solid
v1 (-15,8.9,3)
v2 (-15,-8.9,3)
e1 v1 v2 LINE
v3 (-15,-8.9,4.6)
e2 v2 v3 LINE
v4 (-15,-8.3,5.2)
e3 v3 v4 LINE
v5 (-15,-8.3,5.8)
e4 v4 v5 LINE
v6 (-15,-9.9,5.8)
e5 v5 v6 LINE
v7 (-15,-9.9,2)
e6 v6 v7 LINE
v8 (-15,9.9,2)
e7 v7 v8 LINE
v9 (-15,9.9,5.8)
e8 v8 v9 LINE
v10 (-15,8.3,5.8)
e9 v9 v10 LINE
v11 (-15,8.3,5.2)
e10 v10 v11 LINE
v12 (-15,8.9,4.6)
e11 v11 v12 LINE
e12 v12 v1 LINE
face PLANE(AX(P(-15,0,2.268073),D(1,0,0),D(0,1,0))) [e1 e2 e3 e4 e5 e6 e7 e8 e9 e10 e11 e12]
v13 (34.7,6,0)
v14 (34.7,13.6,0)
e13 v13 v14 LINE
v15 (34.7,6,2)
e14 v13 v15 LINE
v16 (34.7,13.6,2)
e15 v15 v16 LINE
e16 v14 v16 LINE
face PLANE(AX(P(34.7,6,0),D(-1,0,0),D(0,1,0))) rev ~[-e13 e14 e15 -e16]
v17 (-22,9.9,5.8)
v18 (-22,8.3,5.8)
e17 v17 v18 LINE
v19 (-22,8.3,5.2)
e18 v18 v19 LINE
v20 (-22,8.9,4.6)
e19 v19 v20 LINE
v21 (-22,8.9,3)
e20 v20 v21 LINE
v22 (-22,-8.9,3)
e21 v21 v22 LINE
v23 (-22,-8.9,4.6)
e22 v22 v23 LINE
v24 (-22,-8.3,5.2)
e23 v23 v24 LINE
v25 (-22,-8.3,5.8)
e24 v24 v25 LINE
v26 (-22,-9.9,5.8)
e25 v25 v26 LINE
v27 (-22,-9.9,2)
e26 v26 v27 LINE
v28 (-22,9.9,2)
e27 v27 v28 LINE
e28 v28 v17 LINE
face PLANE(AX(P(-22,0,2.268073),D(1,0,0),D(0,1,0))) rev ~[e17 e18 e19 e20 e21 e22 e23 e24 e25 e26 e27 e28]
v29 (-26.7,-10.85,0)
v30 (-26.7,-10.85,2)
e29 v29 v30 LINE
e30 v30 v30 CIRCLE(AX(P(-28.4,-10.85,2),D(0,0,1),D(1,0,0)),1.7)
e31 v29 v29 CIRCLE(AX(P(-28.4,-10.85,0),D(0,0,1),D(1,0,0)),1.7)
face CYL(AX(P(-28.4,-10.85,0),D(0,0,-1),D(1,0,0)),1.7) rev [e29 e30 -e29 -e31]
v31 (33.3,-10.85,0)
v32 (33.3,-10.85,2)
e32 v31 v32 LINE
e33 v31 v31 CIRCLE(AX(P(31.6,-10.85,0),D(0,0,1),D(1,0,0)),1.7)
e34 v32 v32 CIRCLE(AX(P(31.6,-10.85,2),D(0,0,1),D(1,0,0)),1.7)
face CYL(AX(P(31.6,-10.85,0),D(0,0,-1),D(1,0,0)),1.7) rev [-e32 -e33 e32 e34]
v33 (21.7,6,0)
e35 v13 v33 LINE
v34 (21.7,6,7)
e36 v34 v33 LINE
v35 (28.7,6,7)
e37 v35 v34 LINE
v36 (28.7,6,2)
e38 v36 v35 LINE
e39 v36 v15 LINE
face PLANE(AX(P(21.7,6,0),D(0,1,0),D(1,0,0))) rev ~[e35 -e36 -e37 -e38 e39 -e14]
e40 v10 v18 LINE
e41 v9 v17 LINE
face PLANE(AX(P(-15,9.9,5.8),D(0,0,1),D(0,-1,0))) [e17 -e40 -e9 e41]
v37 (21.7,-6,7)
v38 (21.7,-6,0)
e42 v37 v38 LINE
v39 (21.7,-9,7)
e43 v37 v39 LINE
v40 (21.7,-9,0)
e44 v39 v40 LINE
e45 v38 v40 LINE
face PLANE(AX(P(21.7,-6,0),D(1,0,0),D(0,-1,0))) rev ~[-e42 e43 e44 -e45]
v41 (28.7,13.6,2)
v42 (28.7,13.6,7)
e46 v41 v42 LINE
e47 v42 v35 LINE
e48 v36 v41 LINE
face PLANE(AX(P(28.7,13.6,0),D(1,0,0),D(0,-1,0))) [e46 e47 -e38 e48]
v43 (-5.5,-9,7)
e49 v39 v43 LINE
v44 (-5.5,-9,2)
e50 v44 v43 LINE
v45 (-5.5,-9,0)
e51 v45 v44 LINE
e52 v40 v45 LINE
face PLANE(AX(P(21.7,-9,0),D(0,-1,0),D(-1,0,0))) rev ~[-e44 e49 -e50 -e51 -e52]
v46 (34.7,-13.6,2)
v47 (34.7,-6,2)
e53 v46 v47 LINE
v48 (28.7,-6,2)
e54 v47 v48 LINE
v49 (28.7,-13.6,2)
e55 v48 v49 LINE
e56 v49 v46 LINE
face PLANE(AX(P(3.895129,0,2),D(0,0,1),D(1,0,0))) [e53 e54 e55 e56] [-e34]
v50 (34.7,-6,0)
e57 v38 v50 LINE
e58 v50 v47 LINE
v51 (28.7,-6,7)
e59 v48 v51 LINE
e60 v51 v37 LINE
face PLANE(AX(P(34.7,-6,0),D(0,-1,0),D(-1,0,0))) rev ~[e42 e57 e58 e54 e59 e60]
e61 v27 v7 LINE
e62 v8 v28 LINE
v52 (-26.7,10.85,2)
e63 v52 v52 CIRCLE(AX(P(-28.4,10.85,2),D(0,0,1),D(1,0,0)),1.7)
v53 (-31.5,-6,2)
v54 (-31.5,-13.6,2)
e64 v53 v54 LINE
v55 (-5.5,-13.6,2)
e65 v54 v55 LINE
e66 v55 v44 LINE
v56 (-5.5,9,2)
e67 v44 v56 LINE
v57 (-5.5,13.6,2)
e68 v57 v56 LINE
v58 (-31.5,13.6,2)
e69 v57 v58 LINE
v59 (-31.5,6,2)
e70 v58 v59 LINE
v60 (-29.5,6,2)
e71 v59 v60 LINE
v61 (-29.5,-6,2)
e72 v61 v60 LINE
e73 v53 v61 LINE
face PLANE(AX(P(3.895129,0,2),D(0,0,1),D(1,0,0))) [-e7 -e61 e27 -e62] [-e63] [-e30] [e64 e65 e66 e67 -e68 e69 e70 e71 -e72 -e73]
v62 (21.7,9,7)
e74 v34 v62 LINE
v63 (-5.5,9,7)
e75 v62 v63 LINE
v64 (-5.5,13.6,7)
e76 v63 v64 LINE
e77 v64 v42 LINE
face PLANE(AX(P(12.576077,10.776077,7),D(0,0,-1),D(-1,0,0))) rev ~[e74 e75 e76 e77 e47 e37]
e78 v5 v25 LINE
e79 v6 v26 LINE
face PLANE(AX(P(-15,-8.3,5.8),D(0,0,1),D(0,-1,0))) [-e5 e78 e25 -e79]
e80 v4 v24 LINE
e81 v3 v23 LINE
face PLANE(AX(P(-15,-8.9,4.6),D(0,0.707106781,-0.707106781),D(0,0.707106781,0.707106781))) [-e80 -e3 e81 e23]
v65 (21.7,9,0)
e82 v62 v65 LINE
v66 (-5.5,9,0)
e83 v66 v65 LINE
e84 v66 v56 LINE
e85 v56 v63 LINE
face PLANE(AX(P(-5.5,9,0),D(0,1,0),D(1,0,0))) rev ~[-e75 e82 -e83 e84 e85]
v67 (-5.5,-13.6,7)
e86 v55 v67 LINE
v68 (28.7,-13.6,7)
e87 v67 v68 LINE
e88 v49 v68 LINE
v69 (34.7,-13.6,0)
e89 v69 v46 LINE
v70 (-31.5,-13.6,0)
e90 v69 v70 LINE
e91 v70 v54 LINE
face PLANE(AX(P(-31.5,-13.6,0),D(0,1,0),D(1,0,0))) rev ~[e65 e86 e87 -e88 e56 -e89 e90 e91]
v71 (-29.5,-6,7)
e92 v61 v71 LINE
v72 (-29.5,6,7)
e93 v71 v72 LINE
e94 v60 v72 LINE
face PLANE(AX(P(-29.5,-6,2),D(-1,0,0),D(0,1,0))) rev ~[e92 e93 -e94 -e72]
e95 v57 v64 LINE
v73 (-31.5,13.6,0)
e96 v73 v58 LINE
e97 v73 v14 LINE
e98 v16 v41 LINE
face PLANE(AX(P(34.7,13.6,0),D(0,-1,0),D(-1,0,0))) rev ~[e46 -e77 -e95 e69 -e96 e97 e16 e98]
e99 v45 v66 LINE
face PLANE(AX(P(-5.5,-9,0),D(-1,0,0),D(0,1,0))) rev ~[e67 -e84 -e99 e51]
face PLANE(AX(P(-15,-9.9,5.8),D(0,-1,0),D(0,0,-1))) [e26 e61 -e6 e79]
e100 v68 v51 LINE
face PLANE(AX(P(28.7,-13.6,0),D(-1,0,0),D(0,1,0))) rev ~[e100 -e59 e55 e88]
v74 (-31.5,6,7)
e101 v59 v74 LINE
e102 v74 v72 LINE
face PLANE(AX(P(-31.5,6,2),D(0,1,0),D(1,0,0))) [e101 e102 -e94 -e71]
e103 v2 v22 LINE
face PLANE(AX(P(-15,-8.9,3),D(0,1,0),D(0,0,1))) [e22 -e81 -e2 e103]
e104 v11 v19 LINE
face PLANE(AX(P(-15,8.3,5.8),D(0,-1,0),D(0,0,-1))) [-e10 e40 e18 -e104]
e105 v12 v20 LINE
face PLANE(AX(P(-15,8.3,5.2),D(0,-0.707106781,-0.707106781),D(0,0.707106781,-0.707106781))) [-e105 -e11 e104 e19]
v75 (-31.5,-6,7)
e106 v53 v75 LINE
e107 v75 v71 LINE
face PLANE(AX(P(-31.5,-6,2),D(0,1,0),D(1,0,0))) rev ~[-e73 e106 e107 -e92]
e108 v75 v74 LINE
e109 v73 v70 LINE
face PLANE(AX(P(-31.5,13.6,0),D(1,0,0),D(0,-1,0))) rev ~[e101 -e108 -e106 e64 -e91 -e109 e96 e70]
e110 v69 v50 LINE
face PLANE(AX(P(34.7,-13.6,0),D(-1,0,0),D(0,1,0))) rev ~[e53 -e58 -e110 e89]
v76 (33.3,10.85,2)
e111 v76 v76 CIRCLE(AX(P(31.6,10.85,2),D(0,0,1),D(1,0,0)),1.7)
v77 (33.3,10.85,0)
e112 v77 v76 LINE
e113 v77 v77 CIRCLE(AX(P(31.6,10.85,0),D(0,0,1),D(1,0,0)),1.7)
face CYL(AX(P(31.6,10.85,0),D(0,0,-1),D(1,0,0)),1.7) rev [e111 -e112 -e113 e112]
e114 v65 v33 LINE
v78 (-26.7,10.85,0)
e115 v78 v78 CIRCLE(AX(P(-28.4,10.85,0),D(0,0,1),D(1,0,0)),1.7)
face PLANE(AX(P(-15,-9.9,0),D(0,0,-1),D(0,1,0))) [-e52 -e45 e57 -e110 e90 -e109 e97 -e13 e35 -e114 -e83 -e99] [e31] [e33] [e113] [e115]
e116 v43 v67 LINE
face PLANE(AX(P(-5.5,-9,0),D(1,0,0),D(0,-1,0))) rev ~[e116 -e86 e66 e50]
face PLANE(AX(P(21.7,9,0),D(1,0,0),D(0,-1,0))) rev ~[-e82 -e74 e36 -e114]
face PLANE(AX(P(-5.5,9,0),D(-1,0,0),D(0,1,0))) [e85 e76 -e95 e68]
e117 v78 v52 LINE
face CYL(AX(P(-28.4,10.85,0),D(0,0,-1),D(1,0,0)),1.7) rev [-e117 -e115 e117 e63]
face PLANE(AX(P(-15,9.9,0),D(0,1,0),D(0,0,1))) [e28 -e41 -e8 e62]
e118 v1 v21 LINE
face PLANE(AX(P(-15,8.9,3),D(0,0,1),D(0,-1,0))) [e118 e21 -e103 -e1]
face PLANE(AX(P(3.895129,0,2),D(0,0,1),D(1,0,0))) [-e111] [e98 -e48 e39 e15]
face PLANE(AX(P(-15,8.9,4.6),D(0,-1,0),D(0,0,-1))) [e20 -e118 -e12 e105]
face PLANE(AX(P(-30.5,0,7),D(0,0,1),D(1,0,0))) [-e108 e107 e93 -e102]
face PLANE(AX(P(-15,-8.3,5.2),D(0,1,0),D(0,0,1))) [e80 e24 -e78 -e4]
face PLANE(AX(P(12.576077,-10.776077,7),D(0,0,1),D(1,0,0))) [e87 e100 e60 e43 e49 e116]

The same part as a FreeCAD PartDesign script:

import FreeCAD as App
import Part
import Sketcher
from FreeCAD import Vector
Q = App.Units.Quantity

doc = App.newDocument("Part")
body = doc.addObject("PartDesign::Body", "Body")

sketch1 = body.newObject("Sketcher::SketchObject", "Sketch")
sketch1.AttachmentSupport = (doc.getObject("XY_Plane"), [""])
sketch1.MapMode = "FlatFace"
sketch1.addGeometry([
    Part.LineSegment(Vector(-31.5, -13.6, 0), Vector(34.7, -13.6, 0)),
    Part.LineSegment(Vector(34.7, -13.6, 0), Vector(34.7, -6, 0)),
    Part.LineSegment(Vector(34.7, -6, 0), Vector(21.7, -6, 0)),
    Part.LineSegment(Vector(21.7, -6, 0), Vector(21.7, -9, 0)),
    Part.LineSegment(Vector(21.7, -9, 0), Vector(-5.5, -9, 0)),
    Part.LineSegment(Vector(-5.5, -9, 0), Vector(-5.5, 9, 0)),
    Part.LineSegment(Vector(-5.5, 9, 0), Vector(21.7, 9, 0)),
    Part.LineSegment(Vector(21.7, 9, 0), Vector(21.7, 6, 0)),
    Part.LineSegment(Vector(21.7, 6, 0), Vector(34.7, 6, 0)),
    Part.LineSegment(Vector(34.7, 6, 0), Vector(34.7, 13.6, 0)),
    Part.LineSegment(Vector(34.7, 13.6, 0), Vector(-31.5, 13.6, 0)),
    Part.LineSegment(Vector(-31.5, 13.6, 0), Vector(-31.5, -13.6, 0)),
    Part.Circle(Vector(-28.4, -10.85, 0), Vector(0, 0, 1), 1.7),
    Part.Circle(Vector(31.6, -10.85, 0), Vector(0, 0, 1), 1.7),
    Part.Circle(Vector(-28.4, 10.85, 0), Vector(0, 0, 1), 1.7),
    Part.Circle(Vector(31.6, 10.85, 0), Vector(0, 0, 1), 1.7),
], False)
sketch1.addConstraint([
    Sketcher.Constraint("Coincident", 0, 2, 1, 1),
    Sketcher.Constraint("Coincident", 1, 2, 2, 1),
    Sketcher.Constraint("Coincident", 2, 2, 3, 1),
    Sketcher.Constraint("Coincident", 3, 2, 4, 1),
    Sketcher.Constraint("Coincident", 4, 2, 5, 1),
    Sketcher.Constraint("Coincident", 5, 2, 6, 1),
    Sketcher.Constraint("Coincident", 6, 2, 7, 1),
    Sketcher.Constraint("Coincident", 7, 2, 8, 1),
    Sketcher.Constraint("Coincident", 8, 2, 9, 1),
    Sketcher.Constraint("Coincident", 9, 2, 10, 1),
    Sketcher.Constraint("Coincident", 10, 2, 11, 1),
    Sketcher.Constraint("Coincident", 11, 2, 0, 1),
    Sketcher.Constraint("Horizontal", 0),
    Sketcher.Constraint("Vertical", 1),
    Sketcher.Constraint("Horizontal", 2),
    Sketcher.Constraint("Vertical", 3),
    Sketcher.Constraint("Horizontal", 4),
    Sketcher.Constraint("Vertical", 5),
    Sketcher.Constraint("Horizontal", 6),
    Sketcher.Constraint("Vertical", 7),
    Sketcher.Constraint("Horizontal", 8),
    Sketcher.Constraint("Vertical", 9),
    Sketcher.Constraint("Horizontal", 10),
    Sketcher.Constraint("Vertical", 11),
    Sketcher.Constraint("Equal", 12, 13),
    Sketcher.Constraint("Equal", 13, 14),
    Sketcher.Constraint("Equal", 14, 15),
    Sketcher.Constraint("Symmetric", 12, 3, 14, 3, -1),
    Sketcher.Constraint("Symmetric", 13, 3, 15, 3, -1),
    Sketcher.Constraint("Symmetric", 3, 2, 6, 2, -1),
    Sketcher.Constraint("Symmetric", 1, 2, 8, 2, -1),
    Sketcher.Constraint("Horizontal", 12, 3, 13, 3),
    Sketcher.Constraint("Equal", 1, 9),
    Sketcher.Constraint("Equal", 6, 11),
    Sketcher.Constraint("Diameter", 12, Q("3.4 mm")),
    Sketcher.Constraint("DistanceX", 2, 2, 2, 1, Q("13 mm")),
    Sketcher.Constraint("DistanceY", 3, 2, 3, 1, Q("3 mm")),
    Sketcher.Constraint("DistanceY", 5, 1, 5, 2, Q("18 mm")),
    Sketcher.Constraint("DistanceX", 0, 1, 0, 2, Q("66.2 mm")),
    Sketcher.Constraint("DistanceX", 4, 2, 4, 1, Q("27.2 mm")),
    Sketcher.Constraint("DistanceX", 12, 3, 13, 3, Q("60 mm")),
    Sketcher.Constraint("DistanceX", 12, 3, -1, 1, Q("28.4 mm")),
    Sketcher.Constraint("DistanceX", -1, 1, 0, 2, Q("34.7 mm")),
    Sketcher.Constraint("DistanceY", 12, 3, 14, 3, Q("21.7 mm")),
])
pad1 = body.newObject("PartDesign::Pad", "Pad")
pad1.Profile = sketch1
pad1.Length = 2

sketch2 = body.newObject("Sketcher::SketchObject", "Sketch001")
sketch2.AttachmentSupport = (doc.getObject("XY_Plane"), [""])
sketch2.MapMode = "FlatFace"
sketch2.addGeometry([
    Part.LineSegment(Vector(-5.5, 13.6, 0), Vector(-5.5, 9, 0)),
    Part.LineSegment(Vector(-5.5, 9, 0), Vector(21.7, 9, 0)),
    Part.LineSegment(Vector(21.7, 9, 0), Vector(21.7, 6, 0)),
    Part.LineSegment(Vector(21.7, 6, 0), Vector(28.7, 6, 0)),
    Part.LineSegment(Vector(28.7, 6, 0), Vector(28.7, 13.6, 0)),
    Part.LineSegment(Vector(28.7, 13.6, 0), Vector(-5.5, 13.6, 0)),
    Part.LineSegment(Vector(-5.5, -9, 0), Vector(-5.5, -13.6, 0)),
    Part.LineSegment(Vector(-5.5, -13.6, 0), Vector(28.7, -13.6, 0)),
    Part.LineSegment(Vector(28.7, -13.6, 0), Vector(28.7, -6, 0)),
    Part.LineSegment(Vector(28.7, -6, 0), Vector(21.7, -6, 0)),
    Part.LineSegment(Vector(21.7, -6, 0), Vector(21.7, -9, 0)),
    Part.LineSegment(Vector(21.7, -9, 0), Vector(-5.5, -9, 0)),
], False)
sketch2.addConstraint([
    Sketcher.Constraint("Coincident", 0, 2, 1, 1),
    Sketcher.Constraint("Coincident", 1, 2, 2, 1),
    Sketcher.Constraint("Coincident", 2, 2, 3, 1),
    Sketcher.Constraint("Coincident", 3, 2, 4, 1),
    Sketcher.Constraint("Coincident", 4, 2, 5, 1),
    Sketcher.Constraint("Coincident", 5, 2, 0, 1),
    Sketcher.Constraint("Coincident", 6, 2, 7, 1),
    Sketcher.Constraint("Coincident", 7, 2, 8, 1),
    Sketcher.Constraint("Coincident", 8, 2, 9, 1),
    Sketcher.Constraint("Coincident", 9, 2, 10, 1),
    Sketcher.Constraint("Coincident", 10, 2, 11, 1),
    Sketcher.Constraint("Coincident", 11, 2, 6, 1),
    Sketcher.Constraint("Vertical", 0),
    Sketcher.Constraint("Horizontal", 1),
    Sketcher.Constraint("Vertical", 2),
    Sketcher.Constraint("Horizontal", 3),
    Sketcher.Constraint("Vertical", 4),
    Sketcher.Constraint("Horizontal", 5),
    Sketcher.Constraint("Vertical", 6),
    Sketcher.Constraint("Horizontal", 7),
    Sketcher.Constraint("Vertical", 8),
    Sketcher.Constraint("Horizontal", 9),
    Sketcher.Constraint("Vertical", 10),
    Sketcher.Constraint("Horizontal", 11),
    Sketcher.Constraint("Symmetric", 5, 2, 6, 2, -1),
    Sketcher.Constraint("Symmetric", 3, 2, 8, 2, -1),
    Sketcher.Constraint("Symmetric", 1, 2, 10, 2, -1),
    Sketcher.Constraint("DistanceX", 3, 1, 3, 2, Q("7 mm")),
    Sketcher.Constraint("DistanceY", 2, 2, 2, 1, Q("3 mm")),
    Sketcher.Constraint("DistanceX", 1, 1, 1, 2, Q("27.2 mm")),
    Sketcher.Constraint("DistanceY", 0, 2, 0, 1, Q("4.6 mm")),
    Sketcher.Constraint("DistanceY", -1, 1, 0, 2, Q("9 mm")),
    Sketcher.Constraint("DistanceX", 0, 2, -1, 1, Q("5.5 mm")),
])
pad2 = body.newObject("PartDesign::Pad", "Pad001")
pad2.Profile = sketch2
pad2.Length = 7

sketch3 = body.newObject("Sketcher::SketchObject", "Sketch002")
sketch3.AttachmentSupport = (doc.getObject("YZ_Plane"), [""])
sketch3.MapMode = "FlatFace"
sketch3.AttachmentOffset = App.Placement(Vector(0, 0, -15), App.Rotation())
sketch3.addGeometry([
    Part.LineSegment(Vector(9.9, 0, 0), Vector(9.9, 5.8, 0)),
    Part.LineSegment(Vector(9.9, 5.8, 0), Vector(8.3, 5.8, 0)),
    Part.LineSegment(Vector(8.3, 5.8, 0), Vector(8.3, 5.2, 0)),
    Part.LineSegment(Vector(8.3, 5.2, 0), Vector(8.9, 4.6, 0)),
    Part.LineSegment(Vector(8.9, 4.6, 0), Vector(8.9, 3, 0)),
    Part.LineSegment(Vector(8.9, 3, 0), Vector(-8.9, 3, 0)),
    Part.LineSegment(Vector(-8.9, 3, 0), Vector(-8.9, 4.6, 0)),
    Part.LineSegment(Vector(-8.9, 4.6, 0), Vector(-8.3, 5.2, 0)),
    Part.LineSegment(Vector(-8.3, 5.2, 0), Vector(-8.3, 5.8, 0)),
    Part.LineSegment(Vector(-8.3, 5.8, 0), Vector(-9.9, 5.8, 0)),
    Part.LineSegment(Vector(-9.9, 5.8, 0), Vector(-9.9, 0, 0)),
    Part.LineSegment(Vector(-9.9, 0, 0), Vector(9.9, 0, 0)),
], False)
sketch3.addConstraint([
    Sketcher.Constraint("Coincident", 0, 2, 1, 1),
    Sketcher.Constraint("Coincident", 1, 2, 2, 1),
    Sketcher.Constraint("Coincident", 2, 2, 3, 1),
    Sketcher.Constraint("Coincident", 3, 2, 4, 1),
    Sketcher.Constraint("Coincident", 4, 2, 5, 1),
    Sketcher.Constraint("Coincident", 5, 2, 6, 1),
    Sketcher.Constraint("Coincident", 6, 2, 7, 1),
    Sketcher.Constraint("Coincident", 7, 2, 8, 1),
    Sketcher.Constraint("Coincident", 8, 2, 9, 1),
    Sketcher.Constraint("Coincident", 9, 2, 10, 1),
    Sketcher.Constraint("Coincident", 10, 2, 11, 1),
    Sketcher.Constraint("Coincident", 11, 2, 0, 1),
    Sketcher.Constraint("Vertical", 0),
    Sketcher.Constraint("Horizontal", 1),
    Sketcher.Constraint("Vertical", 2),
    Sketcher.Constraint("Vertical", 4),
    Sketcher.Constraint("Horizontal", 5),
    Sketcher.Constraint("Vertical", 6),
    Sketcher.Constraint("Vertical", 8),
    Sketcher.Constraint("Horizontal", 9),
    Sketcher.Constraint("Vertical", 10),
    Sketcher.Constraint("Horizontal", 11),
    Sketcher.Constraint("Symmetric", 10, 2, 11, 2, -1, 1),
    Sketcher.Constraint("Symmetric", 3, 2, 6, 2, -2),
    Sketcher.Constraint("Symmetric", 2, 2, 7, 2, -2),
    Sketcher.Constraint("Perpendicular", 3, 7),
    Sketcher.Constraint("Horizontal", 1, 2, 8, 2),
    Sketcher.Constraint("Equal", 9, 4),
    Sketcher.Constraint("DistanceX", 1, 2, 1, 1, Q("1.6 mm")),
    Sketcher.Constraint("DistanceX", 5, 2, 5, 1, Q("17.8 mm")),
    Sketcher.Constraint("DistanceX", 11, 1, 11, 2, Q("19.8 mm")),
    Sketcher.Constraint("DistanceY", 0, 1, 0, 2, Q("5.8 mm")),
    Sketcher.Constraint("DistanceY", 2, 2, 2, 1, Q("0.6 mm")),
])
pad3 = body.newObject("PartDesign::Pad", "Pad002")
pad3.Profile = sketch3
pad3.Length = 7
pad3.Reversed = True

sketch4 = body.newObject("Sketcher::SketchObject", "Sketch003")
sketch4.AttachmentSupport = (doc.getObject("XY_Plane"), [""])
sketch4.MapMode = "FlatFace"
sketch4.AttachmentOffset = App.Placement(Vector(0, 0, 2), App.Rotation())
sketch4.addGeometry([
    Part.LineSegment(Vector(-31.5, 6, 0), Vector(-31.5, -6, 0)),
    Part.LineSegment(Vector(-31.5, -6, 0), Vector(-29.5, -6, 0)),
    Part.LineSegment(Vector(-29.5, -6, 0), Vector(-29.5, 6, 0)),
    Part.LineSegment(Vector(-29.5, 6, 0), Vector(-31.5, 6, 0)),
], False)
sketch4.addConstraint([
    Sketcher.Constraint("Coincident", 0, 2, 1, 1),
    Sketcher.Constraint("Coincident", 1, 2, 2, 1),
    Sketcher.Constraint("Coincident", 2, 2, 3, 1),
    Sketcher.Constraint("Coincident", 3, 2, 0, 1),
    Sketcher.Constraint("Vertical", 0),
    Sketcher.Constraint("Horizontal", 1),
    Sketcher.Constraint("Vertical", 2),
    Sketcher.Constraint("Horizontal", 3),
    Sketcher.Constraint("DistanceX", 1, 1, 1, 2, Q("2 mm")),
    Sketcher.Constraint("DistanceY", 0, 2, 0, 1, Q("12 mm")),
    Sketcher.Constraint("DistanceY", 0, 2, -1, 1, Q("6 mm")),
    Sketcher.Constraint("DistanceX", 0, 2, -1, 1, Q("31.5 mm")),
])
pad4 = body.newObject("PartDesign::Pad", "Pad003")
pad4.Profile = sketch4
pad4.Length = 5

doc.recompute()
